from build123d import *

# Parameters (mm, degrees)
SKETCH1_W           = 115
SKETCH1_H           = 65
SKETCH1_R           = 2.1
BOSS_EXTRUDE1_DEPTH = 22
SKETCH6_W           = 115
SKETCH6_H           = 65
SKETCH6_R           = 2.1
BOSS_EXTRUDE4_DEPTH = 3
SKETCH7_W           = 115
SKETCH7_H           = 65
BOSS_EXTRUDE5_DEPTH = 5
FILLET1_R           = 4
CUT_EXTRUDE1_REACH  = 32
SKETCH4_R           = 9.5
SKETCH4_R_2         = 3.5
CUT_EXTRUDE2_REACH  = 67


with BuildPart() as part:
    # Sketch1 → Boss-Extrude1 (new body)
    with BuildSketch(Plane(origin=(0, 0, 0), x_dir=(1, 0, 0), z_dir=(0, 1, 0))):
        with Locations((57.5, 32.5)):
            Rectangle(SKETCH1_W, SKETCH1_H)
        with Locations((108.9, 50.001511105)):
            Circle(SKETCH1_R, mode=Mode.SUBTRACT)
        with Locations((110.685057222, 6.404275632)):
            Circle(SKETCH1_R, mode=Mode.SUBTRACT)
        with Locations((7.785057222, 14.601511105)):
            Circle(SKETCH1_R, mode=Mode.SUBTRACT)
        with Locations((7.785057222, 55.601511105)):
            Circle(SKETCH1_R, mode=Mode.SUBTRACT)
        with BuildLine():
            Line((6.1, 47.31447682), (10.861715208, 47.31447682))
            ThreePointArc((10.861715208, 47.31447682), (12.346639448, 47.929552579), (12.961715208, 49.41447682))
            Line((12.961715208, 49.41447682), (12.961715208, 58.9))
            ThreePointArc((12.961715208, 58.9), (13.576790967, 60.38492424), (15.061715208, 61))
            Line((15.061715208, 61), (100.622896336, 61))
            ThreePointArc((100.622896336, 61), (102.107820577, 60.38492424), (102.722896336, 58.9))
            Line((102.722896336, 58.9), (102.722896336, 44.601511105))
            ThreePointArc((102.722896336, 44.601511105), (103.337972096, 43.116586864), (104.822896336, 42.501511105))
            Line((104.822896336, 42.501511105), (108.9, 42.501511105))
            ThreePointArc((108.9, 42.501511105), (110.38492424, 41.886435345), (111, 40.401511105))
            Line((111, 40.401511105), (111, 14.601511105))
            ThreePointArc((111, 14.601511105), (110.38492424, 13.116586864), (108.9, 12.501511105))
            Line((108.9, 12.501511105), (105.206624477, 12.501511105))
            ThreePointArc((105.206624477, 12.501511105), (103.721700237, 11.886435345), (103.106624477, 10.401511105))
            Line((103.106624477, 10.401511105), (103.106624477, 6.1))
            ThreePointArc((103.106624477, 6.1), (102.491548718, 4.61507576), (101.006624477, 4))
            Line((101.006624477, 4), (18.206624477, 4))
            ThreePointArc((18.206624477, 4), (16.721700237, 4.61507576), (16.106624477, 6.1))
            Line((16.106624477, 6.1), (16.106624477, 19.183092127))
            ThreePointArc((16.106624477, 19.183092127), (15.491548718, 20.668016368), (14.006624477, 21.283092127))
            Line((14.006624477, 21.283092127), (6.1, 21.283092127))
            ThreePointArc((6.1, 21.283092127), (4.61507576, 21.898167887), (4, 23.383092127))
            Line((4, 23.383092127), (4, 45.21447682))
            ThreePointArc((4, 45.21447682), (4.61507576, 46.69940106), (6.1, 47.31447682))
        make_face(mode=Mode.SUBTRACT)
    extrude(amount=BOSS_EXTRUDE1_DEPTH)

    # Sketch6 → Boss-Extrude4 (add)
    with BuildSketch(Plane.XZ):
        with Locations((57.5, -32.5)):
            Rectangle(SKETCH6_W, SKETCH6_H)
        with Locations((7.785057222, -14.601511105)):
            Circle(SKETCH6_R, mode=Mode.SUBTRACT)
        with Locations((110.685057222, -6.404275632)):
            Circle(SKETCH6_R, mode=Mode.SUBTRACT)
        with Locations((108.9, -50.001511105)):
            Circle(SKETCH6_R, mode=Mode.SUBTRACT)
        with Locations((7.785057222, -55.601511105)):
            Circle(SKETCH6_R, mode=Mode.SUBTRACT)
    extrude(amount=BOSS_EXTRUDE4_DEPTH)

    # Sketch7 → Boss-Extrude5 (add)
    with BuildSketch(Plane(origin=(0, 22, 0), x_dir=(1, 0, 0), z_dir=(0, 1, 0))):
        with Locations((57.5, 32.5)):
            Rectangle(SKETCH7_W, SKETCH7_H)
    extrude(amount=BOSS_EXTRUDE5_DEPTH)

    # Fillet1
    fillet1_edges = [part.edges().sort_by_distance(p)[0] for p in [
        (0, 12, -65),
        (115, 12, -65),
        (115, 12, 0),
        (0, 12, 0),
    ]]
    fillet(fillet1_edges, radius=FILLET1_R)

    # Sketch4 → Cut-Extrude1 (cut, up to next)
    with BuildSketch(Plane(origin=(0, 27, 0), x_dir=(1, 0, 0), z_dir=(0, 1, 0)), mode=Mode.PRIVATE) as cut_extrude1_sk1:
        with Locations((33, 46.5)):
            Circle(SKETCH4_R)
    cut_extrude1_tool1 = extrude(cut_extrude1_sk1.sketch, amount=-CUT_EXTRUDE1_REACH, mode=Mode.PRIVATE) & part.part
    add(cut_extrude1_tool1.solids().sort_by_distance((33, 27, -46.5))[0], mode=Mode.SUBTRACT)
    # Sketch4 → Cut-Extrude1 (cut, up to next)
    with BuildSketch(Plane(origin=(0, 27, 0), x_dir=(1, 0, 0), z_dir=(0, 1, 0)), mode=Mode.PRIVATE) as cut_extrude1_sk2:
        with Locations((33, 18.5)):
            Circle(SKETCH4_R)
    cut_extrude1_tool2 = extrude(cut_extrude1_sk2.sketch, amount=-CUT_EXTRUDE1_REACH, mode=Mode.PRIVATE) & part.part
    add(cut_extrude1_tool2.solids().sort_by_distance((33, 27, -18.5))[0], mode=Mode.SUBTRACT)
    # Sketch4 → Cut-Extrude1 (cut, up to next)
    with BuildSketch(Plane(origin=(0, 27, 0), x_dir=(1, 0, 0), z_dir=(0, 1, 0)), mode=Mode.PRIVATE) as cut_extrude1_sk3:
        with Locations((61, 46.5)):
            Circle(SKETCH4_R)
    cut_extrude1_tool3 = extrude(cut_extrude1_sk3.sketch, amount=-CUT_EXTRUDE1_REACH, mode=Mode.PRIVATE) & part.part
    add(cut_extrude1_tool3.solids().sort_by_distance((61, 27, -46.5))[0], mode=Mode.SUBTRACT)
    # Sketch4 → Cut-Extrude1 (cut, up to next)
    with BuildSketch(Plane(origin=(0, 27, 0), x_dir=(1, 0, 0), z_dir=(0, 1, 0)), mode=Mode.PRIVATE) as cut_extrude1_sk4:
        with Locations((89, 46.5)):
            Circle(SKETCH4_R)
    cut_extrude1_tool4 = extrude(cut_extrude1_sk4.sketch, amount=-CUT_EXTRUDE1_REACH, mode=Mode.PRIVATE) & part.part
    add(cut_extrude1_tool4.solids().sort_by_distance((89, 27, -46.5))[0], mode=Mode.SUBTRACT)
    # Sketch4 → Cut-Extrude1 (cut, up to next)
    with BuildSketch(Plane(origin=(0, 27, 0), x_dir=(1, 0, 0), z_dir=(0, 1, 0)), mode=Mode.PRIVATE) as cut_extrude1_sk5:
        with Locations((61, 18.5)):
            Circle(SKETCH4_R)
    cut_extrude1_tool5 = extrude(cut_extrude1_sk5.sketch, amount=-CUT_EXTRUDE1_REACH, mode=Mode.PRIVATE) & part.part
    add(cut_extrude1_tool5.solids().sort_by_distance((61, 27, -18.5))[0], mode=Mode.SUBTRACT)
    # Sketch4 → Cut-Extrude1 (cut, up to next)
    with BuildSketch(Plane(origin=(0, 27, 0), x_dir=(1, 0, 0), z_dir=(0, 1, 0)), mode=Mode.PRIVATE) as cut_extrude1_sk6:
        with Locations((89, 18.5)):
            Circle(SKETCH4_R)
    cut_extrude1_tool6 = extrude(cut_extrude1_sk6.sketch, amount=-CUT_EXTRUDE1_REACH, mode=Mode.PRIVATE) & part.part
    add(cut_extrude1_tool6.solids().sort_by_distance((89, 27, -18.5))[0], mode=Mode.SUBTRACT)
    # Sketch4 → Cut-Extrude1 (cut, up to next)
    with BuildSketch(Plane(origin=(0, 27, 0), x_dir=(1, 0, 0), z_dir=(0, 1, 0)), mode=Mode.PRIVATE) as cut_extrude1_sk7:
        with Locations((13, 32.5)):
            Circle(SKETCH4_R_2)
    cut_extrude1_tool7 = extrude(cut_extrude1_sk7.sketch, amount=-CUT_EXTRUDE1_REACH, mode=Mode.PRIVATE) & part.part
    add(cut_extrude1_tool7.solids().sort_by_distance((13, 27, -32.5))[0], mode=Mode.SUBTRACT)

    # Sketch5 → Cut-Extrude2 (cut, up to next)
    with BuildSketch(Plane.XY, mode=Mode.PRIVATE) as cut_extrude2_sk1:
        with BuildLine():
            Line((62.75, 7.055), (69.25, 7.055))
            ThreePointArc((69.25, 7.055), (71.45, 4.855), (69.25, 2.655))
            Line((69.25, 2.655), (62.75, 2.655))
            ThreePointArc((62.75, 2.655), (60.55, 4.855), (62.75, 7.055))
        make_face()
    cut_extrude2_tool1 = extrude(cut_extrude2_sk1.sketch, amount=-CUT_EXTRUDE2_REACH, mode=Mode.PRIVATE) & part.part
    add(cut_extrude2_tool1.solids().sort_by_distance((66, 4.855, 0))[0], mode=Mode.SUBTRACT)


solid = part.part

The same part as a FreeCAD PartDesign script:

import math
import FreeCAD as App
import Part
import Sketcher
from FreeCAD import Vector
Q = App.Units.Quantity


def edges_at(feature, points):
    """Names of the edges that pass closest to the given points."""
    edges = feature.Shape.Edges
    near = lambda p: min(range(len(edges)), key=lambda i: edges[i].distToShape(Part.Vertex(*p))[0])
    return sorted({f"Edge{near(p) + 1}" for p in points})


def add_polygon(sketch, points):
    """Adds a closed chain of lines whose ends are joined by coincident constraints."""
    first, n = sketch.GeometryCount, len(points)
    for a, b in zip(points, points[1:] + points[:1]):
        sketch.addGeometry(Part.LineSegment(App.Vector(*a, 0), App.Vector(*b, 0)), False)
    for i in range(n):
        sketch.addConstraint(Sketcher.Constraint("Coincident", first + i, 2, first + (i + 1) % n, 1))

doc = App.newDocument("Part")
body = doc.addObject("PartDesign::Body", "Body")

# Sketch on XZ plane
sketch1 = body.newObject("Sketcher::SketchObject", "Sketch")
sketch1.AttachmentSupport = (doc.getObject("XZ_Plane"), [""])
sketch1.MapMode = "FlatFace"
add_polygon(sketch1, [(0, -65), (0, 0), (115, 0), (115, -65)])  # lines 0-3
sketch1.addGeometry(Part.Circle(Vector(7.8, -14.6, 0), Vector(0, 0, 1), 2.1), False)  # 4
sketch1.addGeometry(Part.Circle(Vector(110.7, -6.4, 0), Vector(0, 0, 1), 2.1), False)  # 5
sketch1.addGeometry(Part.ArcOfCircle(Part.Circle(Vector(6.1, -45.2, 0), Vector(0, 0, 1), 2.1), math.radians(-180), math.radians(-90)), False)  # 6
sketch1.addGeometry(Part.LineSegment(Vector(6.1, -47.3, 0), Vector(10.9, -47.3, 0)), False)  # 7
sketch1.addGeometry(Part.ArcOfCircle(Part.Circle(Vector(10.9, -49.4, 0), Vector(0, 0, 1), 2.1), math.radians(0), math.radians(90)), False)  # 8
sketch1.addGeometry(Part.LineSegment(Vector(13, -49.4, 0), Vector(13, -58.9, 0)), False)  # 9
sketch1.addGeometry(Part.ArcOfCircle(Part.Circle(Vector(15.1, -58.9, 0), Vector(0, 0, 1), 2.1), math.radians(180), math.radians(270)), False)  # 10
sketch1.addGeometry(Part.LineSegment(Vector(15.1, -61, 0), Vector(100.6, -61, 0)), False)  # 11
sketch1.addGeometry(Part.ArcOfCircle(Part.Circle(Vector(100.6, -58.9, 0), Vector(0, 0, 1), 2.1), math.radians(-90), math.radians(0)), False)  # 12
sketch1.addGeometry(Part.LineSegment(Vector(102.7, -58.9, 0), Vector(102.7, -44.6, 0)), False)  # 13
sketch1.addGeometry(Part.ArcOfCircle(Part.Circle(Vector(104.8, -44.6, 0), Vector(0, 0, 1), 2.1), math.radians(90), math.radians(180)), False)  # 14
sketch1.addGeometry(Part.LineSegment(Vector(104.8, -42.5, 0), Vector(108.9, -42.5, 0)), False)  # 15
sketch1.addGeometry(Part.ArcOfCircle(Part.Circle(Vector(108.9, -40.4, 0), Vector(0, 0, 1), 2.1), math.radians(-90), math.radians(0)), False)  # 16
sketch1.addGeometry(Part.LineSegment(Vector(111, -40.4, 0), Vector(111, -14.6, 0)), False)  # 17
sketch1.addGeometry(Part.ArcOfCircle(Part.Circle(Vector(108.9, -14.6, 0), Vector(0, 0, 1), 2.1), math.radians(0), math.radians(90)), False)  # 18
sketch1.addGeometry(Part.LineSegment(Vector(108.9, -12.5, 0), Vector(105.2, -12.5, 0)), False)  # 19
sketch1.addGeometry(Part.ArcOfCircle(Part.Circle(Vector(105.2, -10.4, 0), Vector(0, 0, 1), 2.1), math.radians(-180), math.radians(-90)), False)  # 20
sketch1.addGeometry(Part.LineSegment(Vector(103.1, -10.4, 0), Vector(103.1, -6.1, 0)), False)  # 21
sketch1.addGeometry(Part.ArcOfCircle(Part.Circle(Vector(101, -6.1, 0), Vector(0, 0, 1), 2.1), math.radians(0), math.radians(90)), False)  # 22
sketch1.addGeometry(Part.LineSegment(Vector(101, -4, 0), Vector(18.2, -4, 0)), False)  # 23
sketch1.addGeometry(Part.ArcOfCircle(Part.Circle(Vector(18.2, -6.1, 0), Vector(0, 0, 1), 2.1), math.radians(90), math.radians(180)), False)  # 24
sketch1.addGeometry(Part.LineSegment(Vector(16.1, -6.1, 0), Vector(16.1, -19.2, 0)), False)  # 25
sketch1.addGeometry(Part.ArcOfCircle(Part.Circle(Vector(14, -19.2, 0), Vector(0, 0, 1), 2.1), math.radians(-90), math.radians(0)), False)  # 26
sketch1.addGeometry(Part.LineSegment(Vector(14, -21.3, 0), Vector(6.1, -21.3, 0)), False)  # 27
sketch1.addGeometry(Part.ArcOfCircle(Part.Circle(Vector(6.1, -23.4, 0), Vector(0, 0, 1), 2.1), math.radians(90), math.radians(180)), False)  # 28
sketch1.addGeometry(Part.LineSegment(Vector(4, -23.4, 0), Vector(4, -45.2, 0)), False)  # 29
sketch1.addGeometry(Part.Circle(Vector(7.8, -55.6, 0), Vector(0, 0, 1), 2.1), False)  # 30
sketch1.addGeometry(Part.Circle(Vector(108.9, -50, 0), Vector(0, 0, 1), 2.1), False)  # 31
sketch1.addConstraint(Sketcher.Constraint("Tangent", 6, 2, 7, 1))
sketch1.addConstraint(Sketcher.Constraint("Tangent", 7, 2, 8, 2))
sketch1.addConstraint(Sketcher.Constraint("Tangent", 8, 1, 9, 1))
sketch1.addConstraint(Sketcher.Constraint("Tangent", 9, 2, 10, 1))
sketch1.addConstraint(Sketcher.Constraint("Tangent", 10, 2, 11, 1))
sketch1.addConstraint(Sketcher.Constraint("Tangent", 11, 2, 12, 1))
sketch1.addConstraint(Sketcher.Constraint("Tangent", 12, 2, 13, 1))
sketch1.addConstraint(Sketcher.Constraint("Tangent", 13, 2, 14, 2))
sketch1.addConstraint(Sketcher.Constraint("Tangent", 14, 1, 15, 1))
sketch1.addConstraint(Sketcher.Constraint("Tangent", 15, 2, 16, 1))
sketch1.addConstraint(Sketcher.Constraint("Tangent", 16, 2, 17, 1))
sketch1.addConstraint(Sketcher.Constraint("Tangent", 17, 2, 18, 1))
sketch1.addConstraint(Sketcher.Constraint("Tangent", 18, 2, 19, 1))
sketch1.addConstraint(Sketcher.Constraint("Tangent", 19, 2, 20, 2))
sketch1.addConstraint(Sketcher.Constraint("Tangent", 20, 1, 21, 1))
sketch1.addConstraint(Sketcher.Constraint("Tangent", 21, 2, 22, 1))
sketch1.addConstraint(Sketcher.Constraint("Tangent", 22, 2, 23, 1))
sketch1.addConstraint(Sketcher.Constraint("Tangent", 23, 2, 24, 1))
sketch1.addConstraint(Sketcher.Constraint("Tangent", 24, 2, 25, 1))
sketch1.addConstraint(Sketcher.Constraint("Tangent", 25, 2, 26, 2))
sketch1.addConstraint(Sketcher.Constraint("Tangent", 26, 1, 27, 1))
sketch1.addConstraint(Sketcher.Constraint("Tangent", 27, 2, 28, 1))
sketch1.addConstraint(Sketcher.Constraint("Tangent", 28, 2, 29, 1))
sketch1.addConstraint(Sketcher.Constraint("Tangent", 29, 2, 6, 1))
sketch1.addConstraint(Sketcher.Constraint("Vertical", 0))
sketch1.addConstraint(Sketcher.Constraint("Horizontal", 1))
sketch1.addConstraint(Sketcher.Constraint("Vertical", 2))
sketch1.addConstraint(Sketcher.Constraint("Horizontal", 3))
sketch1.addConstraint(Sketcher.Constraint("Horizontal", 7))
sketch1.addConstraint(Sketcher.Constraint("Vertical", 9))
sketch1.addConstraint(Sketcher.Constraint("Horizontal", 11))
sketch1.addConstraint(Sketcher.Constraint("Vertical", 13))
sketch1.addConstraint(Sketcher.Constraint("Horizontal", 15))
sketch1.addConstraint(Sketcher.Constraint("Vertical", 17))
sketch1.addConstraint(Sketcher.Constraint("Horizontal", 19))
sketch1.addConstraint(Sketcher.Constraint("Vertical", 21))
sketch1.addConstraint(Sketcher.Constraint("Horizontal", 23))
sketch1.addConstraint(Sketcher.Constraint("Vertical", 25))
sketch1.addConstraint(Sketcher.Constraint("Horizontal", 27))
sketch1.addConstraint(Sketcher.Constraint("Vertical", 29))
sketch1.addConstraint(Sketcher.Constraint("Coincident", 0, 2, -1, 1))
sketch1.addConstraint(Sketcher.Constraint("Equal", 4, 5))
sketch1.addConstraint(Sketcher.Constraint("Equal", 5, 6))
sketch1.addConstraint(Sketcher.Constraint("Equal", 6, 8))
sketch1.addConstraint(Sketcher.Constraint("Equal", 8, 10))
sketch1.addConstraint(Sketcher.Constraint("Equal", 10, 12))
sketch1.addConstraint(Sketcher.Constraint("Equal", 12, 14))
sketch1.addConstraint(Sketcher.Constraint("Equal", 14, 16))
sketch1.addConstraint(Sketcher.Constraint("Equal", 16, 18))
sketch1.addConstraint(Sketcher.Constraint("Equal", 18, 20))
sketch1.addConstraint(Sketcher.Constraint("Equal", 20, 22))
sketch1.addConstraint(Sketcher.Constraint("Equal", 22, 24))
sketch1.addConstraint(Sketcher.Constraint("Equal", 24, 26))
sketch1.addConstraint(Sketcher.Constraint("Equal", 26, 28))
sketch1.addConstraint(Sketcher.Constraint("Equal", 28, 30))
sketch1.addConstraint(Sketcher.Constraint("Equal", 30, 31))
sketch1.addConstraint(Sketcher.Constraint("Horizontal", 4, 3, 18, 3))
sketch1.addConstraint(Sketcher.Constraint("Vertical", 4, 3, 30, 3))
sketch1.addConstraint(Sketcher.Constraint("Vertical", 18, 3, 31, 3))
sketch1.addConstraint(Sketcher.Constraint("Diameter", 4, Q("4.2 mm")))
sketch1.addConstraint(Sketcher.Constraint("DistanceX", 1, 1, 1, 2, Q("115 mm")))
sketch1.addConstraint(Sketcher.Constraint("DistanceY", 0, 1, 0, 2, Q("65 mm")))
sketch1.addConstraint(Sketcher.Constraint("DistanceX", 23, 2, 23, 1, Q("82.8 mm")))
sketch1.addConstraint(Sketcher.Constraint("DistanceY", 17, 1, 17, 2, Q("25.8 mm")))
sketch1.addConstraint(Sketcher.Constraint("DistanceY", 10, 2, -1, 1, Q("61 mm")))
sketch1.addConstraint(Sketcher.Constraint("DistanceX", -1, 1, 16, 2, Q("111 mm")))
sketch1.addConstraint(Sketcher.Constraint("DistanceY", 22, 2, -1, 1, Q("4 mm")))
sketch1.addConstraint(Sketcher.Constraint("DistanceX", -1, 1, 28, 2, Q("4 mm")))
sketch1.addConstraint(Sketcher.Constraint("DistanceX", 4, 3, 5, 3, Q("102.9 mm")))
sketch1.addConstraint(Sketcher.Constraint("DistanceY", 31, 3, 14, 3, Q("5.4 mm")))
sketch1.addConstraint(Sketcher.Constraint("DistanceX", 11, 1, 11, 2, Q("85.561181 mm")))
sketch1.addConstraint(Sketcher.Constraint("DistanceY", 13, 1, 13, 2, Q("14.298489 mm")))
sketch1.addConstraint(Sketcher.Constraint("DistanceY", 6, 3, 5, 3, Q("38.810201 mm")))
sketch1.addConstraint(Sketcher.Constraint("DistanceX", 7, 1, 7, 2, Q("4.761715 mm")))
sketch1.addConstraint(Sketcher.Constraint("DistanceX", 19, 2, 19, 1, Q("3.693376 mm")))
sketch1.addConstraint(Sketcher.Constraint("DistanceY", 9, 2, 9, 1, Q("9.485523 mm")))
sketch1.addConstraint(Sketcher.Constraint("DistanceY", 25, 2, 25, 1, Q("13.083092 mm")))
sketch1.addConstraint(Sketcher.Constraint("DistanceY", 30, 3, -1, 1, Q("55.601511 mm")))
sketch1.addConstraint(Sketcher.Constraint("DistanceX", 12, 3, 5, 3, Q("10.062161 mm")))
pad1 = body.newObject("PartDesign::Pad", "Pad")
pad1.Profile = sketch1
pad1.Length = 22
pad1.Reversed = True

# Sketch on XZ plane
sketch2 = body.newObject("Sketcher::SketchObject", "Sketch001")
sketch2.AttachmentSupport = (doc.getObject("XZ_Plane"), [""])
sketch2.MapMode = "FlatFace"
add_polygon(sketch2, [(0, 0), (0, -65), (115, -65), (115, 0)])  # lines 0-3
sketch2.addGeometry(Part.Circle(Vector(7.8, -55.6, 0), Vector(0, 0, 1), 2.1), False)  # 4
sketch2.addGeometry(Part.Circle(Vector(108.9, -50, 0), Vector(0, 0, 1), 2.1), False)  # 5
sketch2.addGeometry(Part.Circle(Vector(7.8, -14.6, 0), Vector(0, 0, 1), 2.1), False)  # 6
sketch2.addGeometry(Part.Circle(Vector(110.7, -6.4, 0), Vector(0, 0, 1), 2.1), False)  # 7
sketch2.addConstraint(Sketcher.Constraint("Vertical", 0))
sketch2.addConstraint(Sketcher.Constraint("Horizontal", 1))
sketch2.addConstraint(Sketcher.Constraint("Vertical", 2))
sketch2.addConstraint(Sketcher.Constraint("Horizontal", 3))
sketch2.addConstraint(Sketcher.Constraint("Coincident", 3, 2, -1, 1))
sketch2.addConstraint(Sketcher.Constraint("Equal", 4, 5))
sketch2.addConstraint(Sketcher.Constraint("Equal", 5, 6))
sketch2.addConstraint(Sketcher.Constraint("Equal", 6, 7))
sketch2.addConstraint(Sketcher.Constraint("Vertical", 4, 3, 6, 3))
sketch2.addConstraint(Sketcher.Constraint("Diameter", 4, Q("4.2 mm")))
sketch2.addConstraint(Sketcher.Constraint("DistanceX", 1, 1, 1, 2, Q("115 mm")))
sketch2.addConstraint(Sketcher.Constraint("DistanceY", 0, 2, 0, 1, Q("65 mm")))
sketch2.addConstraint(Sketcher.Constraint("DistanceY", 4, 3, 6, 3, Q("41 mm")))
sketch2.addConstraint(Sketcher.Constraint("DistanceX", -1, 1, 5, 3, Q("108.9 mm")))
sketch2.addConstraint(Sketcher.Constraint("DistanceY", 4, 3, 5, 3, Q("5.6 mm")))
sketch2.addConstraint(Sketcher.Constraint("DistanceX", 6, 3, 7, 3, Q("102.9 mm")))
sketch2.addConstraint(Sketcher.Constraint("DistanceY", 4, 3, -1, 1, Q("55.601511 mm")))
sketch2.addConstraint(Sketcher.Constraint("DistanceX", -1, 1, 4, 3, Q("7.785057 mm")))
sketch2.addConstraint(Sketcher.Constraint("DistanceY", 7, 3, -1, 1, Q("6.404276 mm")))
pad2 = body.newObject("PartDesign::Pad", "Pad001")
pad2.Profile = sketch2
pad2.Length = 3

# Sketch on XZ plane
sketch3 = body.newObject("Sketcher::SketchObject", "Sketch002")
sketch3.AttachmentSupport = (doc.getObject("XZ_Plane"), [""])
sketch3.MapMode = "FlatFace"
sketch3.AttachmentOffset = App.Placement(Vector(0, 0, -22), App.Rotation())
add_polygon(sketch3, [(0, -65), (0, 0), (115, 0), (115, -65)])  # lines 0-3
sketch3.addConstraint(Sketcher.Constraint("Vertical", 0))
sketch3.addConstraint(Sketcher.Constraint("Horizontal", 1))
sketch3.addConstraint(Sketcher.Constraint("Vertical", 2))
sketch3.addConstraint(Sketcher.Constraint("Horizontal", 3))
sketch3.addConstraint(Sketcher.Constraint("Coincident", 0, 2, -1, 1))
sketch3.addConstraint(Sketcher.Constraint("DistanceX", 1, 1, 1, 2, Q("115 mm")))
sketch3.addConstraint(Sketcher.Constraint("DistanceY", 0, 1, 0, 2, Q("65 mm")))
pad3 = body.newObject("PartDesign::Pad", "Pad002")
pad3.Profile = sketch3
pad3.Length = 5
pad3.Reversed = True
doc.recompute()

fillet = body.newObject("PartDesign::Fillet", "Fillet")
fillet.Base = (pad3, edges_at(pad3, [
    (0, 12, -65),
    (115, 12, -65),
    (115, 12, 0),
    (0, 12, 0),
]))
fillet.Radius = 4

# Sketch on XZ plane
sketch4 = body.newObject("Sketcher::SketchObject", "Sketch003")
sketch4.AttachmentSupport = (doc.getObject("XZ_Plane"), [""])
sketch4.MapMode = "FlatFace"
sketch4.AttachmentOffset = App.Placement(Vector(0, 0, -27), App.Rotation())
sketch4.addGeometry(Part.Circle(Vector(33, -46, 0), Vector(0, 0, 1), 10), False)
sketch4.addConstraint(Sketcher.Constraint("Diameter", 0, Q("19 mm")))
sketch4.addConstraint(Sketcher.Constraint("DistanceX", -1, 1, 0, 3, Q("33 mm")))
sketch4.addConstraint(Sketcher.Constraint("DistanceY", 0, 3, -1, 1, Q("46.5 mm")))
pocket1 = body.newObject("PartDesign::Pocket", "Pocket")
pocket1.Profile = sketch4
pocket1.Type = "UpToFirst"
pocket1.Reversed = True

# Sketch on XZ plane
sketch5 = body.newObject("Sketcher::SketchObject", "Sketch004")
sketch5.AttachmentSupport = (doc.getObject("XZ_Plane"), [""])
sketch5.MapMode = "FlatFace"
sketch5.AttachmentOffset = App.Placement(Vector(0, 0, -27), App.Rotation())
sketch5.addGeometry(Part.Circle(Vector(33, -18, 0), Vector(0, 0, 1), 10), False)
sketch5.addConstraint(Sketcher.Constraint("Diameter", 0, Q("19 mm")))
sketch5.addConstraint(Sketcher.Constraint("DistanceX", -1, 1, 0, 3, Q("33 mm")))
sketch5.addConstraint(Sketcher.Constraint("DistanceY", 0, 3, -1, 1, Q("18.5 mm")))
pocket2 = body.newObject("PartDesign::Pocket", "Pocket001")
pocket2.Profile = sketch5
pocket2.Type = "UpToFirst"
pocket2.Reversed = True

# Sketch on XZ plane
sketch6 = body.newObject("Sketcher::SketchObject", "Sketch005")
sketch6.AttachmentSupport = (doc.getObject("XZ_Plane"), [""])
sketch6.MapMode = "FlatFace"
sketch6.AttachmentOffset = App.Placement(Vector(0, 0, -27), App.Rotation())
sketch6.addGeometry(Part.Circle(Vector(61, -46, 0), Vector(0, 0, 1), 10), False)
sketch6.addConstraint(Sketcher.Constraint("Diameter", 0, Q("19 mm")))
sketch6.addConstraint(Sketcher.Constraint("DistanceX", -1, 1, 0, 3, Q("61 mm")))
sketch6.addConstraint(Sketcher.Constraint("DistanceY", 0, 3, -1, 1, Q("46.5 mm")))
pocket3 = body.newObject("PartDesign::Pocket", "Pocket002")
pocket3.Profile = sketch6
pocket3.Type = "UpToFirst"
pocket3.Reversed = True

# Sketch on XZ plane
sketch7 = body.newObject("Sketcher::SketchObject", "Sketch006")
sketch7.AttachmentSupport = (doc.getObject("XZ_Plane"), [""])
sketch7.MapMode = "FlatFace"
sketch7.AttachmentOffset = App.Placement(Vector(0, 0, -27), App.Rotation())
sketch7.addGeometry(Part.Circle(Vector(89, -46, 0), Vector(0, 0, 1), 10), False)
sketch7.addConstraint(Sketcher.Constraint("Diameter", 0, Q("19 mm")))
sketch7.addConstraint(Sketcher.Constraint("DistanceX", -1, 1, 0, 3, Q("89 mm")))
sketch7.addConstraint(Sketcher.Constraint("DistanceY", 0, 3, -1, 1, Q("46.5 mm")))
pocket4 = body.newObject("PartDesign::Pocket", "Pocket003")
pocket4.Profile = sketch7
pocket4.Type = "UpToFirst"
pocket4.Reversed = True

# Sketch on XZ plane
sketch8 = body.newObject("Sketcher::SketchObject", "Sketch007")
sketch8.AttachmentSupport = (doc.getObject("XZ_Plane"), [""])
sketch8.MapMode = "FlatFace"
sketch8.AttachmentOffset = App.Placement(Vector(0, 0, -27), App.Rotation())
sketch8.addGeometry(Part.Circle(Vector(61, -18, 0), Vector(0, 0, 1), 10), False)
sketch8.addConstraint(Sketcher.Constraint("Diameter", 0, Q("19 mm")))
sketch8.addConstraint(Sketcher.Constraint("DistanceX", -1, 1, 0, 3, Q("61 mm")))
sketch8.addConstraint(Sketcher.Constraint("DistanceY", 0, 3, -1, 1, Q("18.5 mm")))
pocket5 = body.newObject("PartDesign::Pocket", "Pocket004")
pocket5.Profile = sketch8
pocket5.Type = "UpToFirst"
pocket5.Reversed = True

# Sketch on XZ plane
sketch9 = body.newObject("Sketcher::SketchObject", "Sketch008")
sketch9.AttachmentSupport = (doc.getObject("XZ_Plane"), [""])
sketch9.MapMode = "FlatFace"
sketch9.AttachmentOffset = App.Placement(Vector(0, 0, -27), App.Rotation())
sketch9.addGeometry(Part.Circle(Vector(89, -18, 0), Vector(0, 0, 1), 10), False)
sketch9.addConstraint(Sketcher.Constraint("Diameter", 0, Q("19 mm")))
sketch9.addConstraint(Sketcher.Constraint("DistanceX", -1, 1, 0, 3, Q("89 mm")))
sketch9.addConstraint(Sketcher.Constraint("DistanceY", 0, 3, -1, 1, Q("18.5 mm")))
pocket6 = body.newObject("PartDesign::Pocket", "Pocket005")
pocket6.Profile = sketch9
pocket6.Type = "UpToFirst"
pocket6.Reversed = True

# Sketch on XZ plane
sketch10 = body.newObject("Sketcher::SketchObject", "Sketch009")
sketch10.AttachmentSupport = (doc.getObject("XZ_Plane"), [""])
sketch10.MapMode = "FlatFace"
sketch10.AttachmentOffset = App.Placement(Vector(0, 0, -27), App.Rotation())
sketch10.addGeometry(Part.Circle(Vector(13, -32.5, 0), Vector(0, 0, 1), 3.5), False)
sketch10.addConstraint(Sketcher.Constraint("Diameter", 0, Q("7 mm")))
sketch10.addConstraint(Sketcher.Constraint("DistanceX", -1, 1, 0, 3, Q("13 mm")))
sketch10.addConstraint(Sketcher.Constraint("DistanceY", 0, 3, -1, 1, Q("32.5 mm")))
pocket7 = body.newObject("PartDesign::Pocket", "Pocket006")
pocket7.Profile = sketch10
pocket7.Type = "UpToFirst"
pocket7.Reversed = True

# Sketch on XY plane
sketch11 = body.newObject("Sketcher::SketchObject", "Sketch010")
sketch11.AttachmentSupport = (doc.getObject("XY_Plane"), [""])
sketch11.MapMode = "FlatFace"
sketch11.addGeometry(Part.LineSegment(Vector(69.2, 7.1, 0), Vector(62.8, 7.1, 0)), False)
sketch11.addGeometry(Part.ArcOfCircle(Part.Circle(Vector(62.8, 4.9, 0), Vector(0, 0, 1), 2.2), math.radians(90), math.radians(270)), False)
sketch11.addGeometry(Part.LineSegment(Vector(62.8, 2.7, 0), Vector(69.2, 2.7, 0)), False)
sketch11.addGeometry(Part.ArcOfCircle(Part.Circle(Vector(69.2, 4.9, 0), Vector(0, 0, 1), 2.2), math.radians(-90), math.radians(90)), False)
sketch11.addConstraint(Sketcher.Constraint("Tangent", 0, 2, 1, 1))
sketch11.addConstraint(Sketcher.Constraint("Tangent", 1, 2, 2, 1))
sketch11.addConstraint(Sketcher.Constraint("Tangent", 2, 2, 3, 1))
sketch11.addConstraint(Sketcher.Constraint("Tangent", 3, 2, 0, 1))
sketch11.addConstraint(Sketcher.Constraint("Horizontal", 0))
sketch11.addConstraint(Sketcher.Constraint("Horizontal", 2))
sketch11.addConstraint(Sketcher.Constraint("Radius", 1, Q("2.2 mm")))
sketch11.addConstraint(Sketcher.Constraint("DistanceX", 0, 2, 0, 1, Q("6.5 mm")))
sketch11.addConstraint(Sketcher.Constraint("DistanceX", -1, 1, 1, 3, Q("62.75 mm")))
sketch11.addConstraint(Sketcher.Constraint("DistanceY", -1, 1, 1, 3, Q("4.855 mm")))
pocket8 = body.newObject("PartDesign::Pocket", "Pocket007")
pocket8.Profile = sketch11
pocket8.Type = "UpToFirst"

doc.recompute()
